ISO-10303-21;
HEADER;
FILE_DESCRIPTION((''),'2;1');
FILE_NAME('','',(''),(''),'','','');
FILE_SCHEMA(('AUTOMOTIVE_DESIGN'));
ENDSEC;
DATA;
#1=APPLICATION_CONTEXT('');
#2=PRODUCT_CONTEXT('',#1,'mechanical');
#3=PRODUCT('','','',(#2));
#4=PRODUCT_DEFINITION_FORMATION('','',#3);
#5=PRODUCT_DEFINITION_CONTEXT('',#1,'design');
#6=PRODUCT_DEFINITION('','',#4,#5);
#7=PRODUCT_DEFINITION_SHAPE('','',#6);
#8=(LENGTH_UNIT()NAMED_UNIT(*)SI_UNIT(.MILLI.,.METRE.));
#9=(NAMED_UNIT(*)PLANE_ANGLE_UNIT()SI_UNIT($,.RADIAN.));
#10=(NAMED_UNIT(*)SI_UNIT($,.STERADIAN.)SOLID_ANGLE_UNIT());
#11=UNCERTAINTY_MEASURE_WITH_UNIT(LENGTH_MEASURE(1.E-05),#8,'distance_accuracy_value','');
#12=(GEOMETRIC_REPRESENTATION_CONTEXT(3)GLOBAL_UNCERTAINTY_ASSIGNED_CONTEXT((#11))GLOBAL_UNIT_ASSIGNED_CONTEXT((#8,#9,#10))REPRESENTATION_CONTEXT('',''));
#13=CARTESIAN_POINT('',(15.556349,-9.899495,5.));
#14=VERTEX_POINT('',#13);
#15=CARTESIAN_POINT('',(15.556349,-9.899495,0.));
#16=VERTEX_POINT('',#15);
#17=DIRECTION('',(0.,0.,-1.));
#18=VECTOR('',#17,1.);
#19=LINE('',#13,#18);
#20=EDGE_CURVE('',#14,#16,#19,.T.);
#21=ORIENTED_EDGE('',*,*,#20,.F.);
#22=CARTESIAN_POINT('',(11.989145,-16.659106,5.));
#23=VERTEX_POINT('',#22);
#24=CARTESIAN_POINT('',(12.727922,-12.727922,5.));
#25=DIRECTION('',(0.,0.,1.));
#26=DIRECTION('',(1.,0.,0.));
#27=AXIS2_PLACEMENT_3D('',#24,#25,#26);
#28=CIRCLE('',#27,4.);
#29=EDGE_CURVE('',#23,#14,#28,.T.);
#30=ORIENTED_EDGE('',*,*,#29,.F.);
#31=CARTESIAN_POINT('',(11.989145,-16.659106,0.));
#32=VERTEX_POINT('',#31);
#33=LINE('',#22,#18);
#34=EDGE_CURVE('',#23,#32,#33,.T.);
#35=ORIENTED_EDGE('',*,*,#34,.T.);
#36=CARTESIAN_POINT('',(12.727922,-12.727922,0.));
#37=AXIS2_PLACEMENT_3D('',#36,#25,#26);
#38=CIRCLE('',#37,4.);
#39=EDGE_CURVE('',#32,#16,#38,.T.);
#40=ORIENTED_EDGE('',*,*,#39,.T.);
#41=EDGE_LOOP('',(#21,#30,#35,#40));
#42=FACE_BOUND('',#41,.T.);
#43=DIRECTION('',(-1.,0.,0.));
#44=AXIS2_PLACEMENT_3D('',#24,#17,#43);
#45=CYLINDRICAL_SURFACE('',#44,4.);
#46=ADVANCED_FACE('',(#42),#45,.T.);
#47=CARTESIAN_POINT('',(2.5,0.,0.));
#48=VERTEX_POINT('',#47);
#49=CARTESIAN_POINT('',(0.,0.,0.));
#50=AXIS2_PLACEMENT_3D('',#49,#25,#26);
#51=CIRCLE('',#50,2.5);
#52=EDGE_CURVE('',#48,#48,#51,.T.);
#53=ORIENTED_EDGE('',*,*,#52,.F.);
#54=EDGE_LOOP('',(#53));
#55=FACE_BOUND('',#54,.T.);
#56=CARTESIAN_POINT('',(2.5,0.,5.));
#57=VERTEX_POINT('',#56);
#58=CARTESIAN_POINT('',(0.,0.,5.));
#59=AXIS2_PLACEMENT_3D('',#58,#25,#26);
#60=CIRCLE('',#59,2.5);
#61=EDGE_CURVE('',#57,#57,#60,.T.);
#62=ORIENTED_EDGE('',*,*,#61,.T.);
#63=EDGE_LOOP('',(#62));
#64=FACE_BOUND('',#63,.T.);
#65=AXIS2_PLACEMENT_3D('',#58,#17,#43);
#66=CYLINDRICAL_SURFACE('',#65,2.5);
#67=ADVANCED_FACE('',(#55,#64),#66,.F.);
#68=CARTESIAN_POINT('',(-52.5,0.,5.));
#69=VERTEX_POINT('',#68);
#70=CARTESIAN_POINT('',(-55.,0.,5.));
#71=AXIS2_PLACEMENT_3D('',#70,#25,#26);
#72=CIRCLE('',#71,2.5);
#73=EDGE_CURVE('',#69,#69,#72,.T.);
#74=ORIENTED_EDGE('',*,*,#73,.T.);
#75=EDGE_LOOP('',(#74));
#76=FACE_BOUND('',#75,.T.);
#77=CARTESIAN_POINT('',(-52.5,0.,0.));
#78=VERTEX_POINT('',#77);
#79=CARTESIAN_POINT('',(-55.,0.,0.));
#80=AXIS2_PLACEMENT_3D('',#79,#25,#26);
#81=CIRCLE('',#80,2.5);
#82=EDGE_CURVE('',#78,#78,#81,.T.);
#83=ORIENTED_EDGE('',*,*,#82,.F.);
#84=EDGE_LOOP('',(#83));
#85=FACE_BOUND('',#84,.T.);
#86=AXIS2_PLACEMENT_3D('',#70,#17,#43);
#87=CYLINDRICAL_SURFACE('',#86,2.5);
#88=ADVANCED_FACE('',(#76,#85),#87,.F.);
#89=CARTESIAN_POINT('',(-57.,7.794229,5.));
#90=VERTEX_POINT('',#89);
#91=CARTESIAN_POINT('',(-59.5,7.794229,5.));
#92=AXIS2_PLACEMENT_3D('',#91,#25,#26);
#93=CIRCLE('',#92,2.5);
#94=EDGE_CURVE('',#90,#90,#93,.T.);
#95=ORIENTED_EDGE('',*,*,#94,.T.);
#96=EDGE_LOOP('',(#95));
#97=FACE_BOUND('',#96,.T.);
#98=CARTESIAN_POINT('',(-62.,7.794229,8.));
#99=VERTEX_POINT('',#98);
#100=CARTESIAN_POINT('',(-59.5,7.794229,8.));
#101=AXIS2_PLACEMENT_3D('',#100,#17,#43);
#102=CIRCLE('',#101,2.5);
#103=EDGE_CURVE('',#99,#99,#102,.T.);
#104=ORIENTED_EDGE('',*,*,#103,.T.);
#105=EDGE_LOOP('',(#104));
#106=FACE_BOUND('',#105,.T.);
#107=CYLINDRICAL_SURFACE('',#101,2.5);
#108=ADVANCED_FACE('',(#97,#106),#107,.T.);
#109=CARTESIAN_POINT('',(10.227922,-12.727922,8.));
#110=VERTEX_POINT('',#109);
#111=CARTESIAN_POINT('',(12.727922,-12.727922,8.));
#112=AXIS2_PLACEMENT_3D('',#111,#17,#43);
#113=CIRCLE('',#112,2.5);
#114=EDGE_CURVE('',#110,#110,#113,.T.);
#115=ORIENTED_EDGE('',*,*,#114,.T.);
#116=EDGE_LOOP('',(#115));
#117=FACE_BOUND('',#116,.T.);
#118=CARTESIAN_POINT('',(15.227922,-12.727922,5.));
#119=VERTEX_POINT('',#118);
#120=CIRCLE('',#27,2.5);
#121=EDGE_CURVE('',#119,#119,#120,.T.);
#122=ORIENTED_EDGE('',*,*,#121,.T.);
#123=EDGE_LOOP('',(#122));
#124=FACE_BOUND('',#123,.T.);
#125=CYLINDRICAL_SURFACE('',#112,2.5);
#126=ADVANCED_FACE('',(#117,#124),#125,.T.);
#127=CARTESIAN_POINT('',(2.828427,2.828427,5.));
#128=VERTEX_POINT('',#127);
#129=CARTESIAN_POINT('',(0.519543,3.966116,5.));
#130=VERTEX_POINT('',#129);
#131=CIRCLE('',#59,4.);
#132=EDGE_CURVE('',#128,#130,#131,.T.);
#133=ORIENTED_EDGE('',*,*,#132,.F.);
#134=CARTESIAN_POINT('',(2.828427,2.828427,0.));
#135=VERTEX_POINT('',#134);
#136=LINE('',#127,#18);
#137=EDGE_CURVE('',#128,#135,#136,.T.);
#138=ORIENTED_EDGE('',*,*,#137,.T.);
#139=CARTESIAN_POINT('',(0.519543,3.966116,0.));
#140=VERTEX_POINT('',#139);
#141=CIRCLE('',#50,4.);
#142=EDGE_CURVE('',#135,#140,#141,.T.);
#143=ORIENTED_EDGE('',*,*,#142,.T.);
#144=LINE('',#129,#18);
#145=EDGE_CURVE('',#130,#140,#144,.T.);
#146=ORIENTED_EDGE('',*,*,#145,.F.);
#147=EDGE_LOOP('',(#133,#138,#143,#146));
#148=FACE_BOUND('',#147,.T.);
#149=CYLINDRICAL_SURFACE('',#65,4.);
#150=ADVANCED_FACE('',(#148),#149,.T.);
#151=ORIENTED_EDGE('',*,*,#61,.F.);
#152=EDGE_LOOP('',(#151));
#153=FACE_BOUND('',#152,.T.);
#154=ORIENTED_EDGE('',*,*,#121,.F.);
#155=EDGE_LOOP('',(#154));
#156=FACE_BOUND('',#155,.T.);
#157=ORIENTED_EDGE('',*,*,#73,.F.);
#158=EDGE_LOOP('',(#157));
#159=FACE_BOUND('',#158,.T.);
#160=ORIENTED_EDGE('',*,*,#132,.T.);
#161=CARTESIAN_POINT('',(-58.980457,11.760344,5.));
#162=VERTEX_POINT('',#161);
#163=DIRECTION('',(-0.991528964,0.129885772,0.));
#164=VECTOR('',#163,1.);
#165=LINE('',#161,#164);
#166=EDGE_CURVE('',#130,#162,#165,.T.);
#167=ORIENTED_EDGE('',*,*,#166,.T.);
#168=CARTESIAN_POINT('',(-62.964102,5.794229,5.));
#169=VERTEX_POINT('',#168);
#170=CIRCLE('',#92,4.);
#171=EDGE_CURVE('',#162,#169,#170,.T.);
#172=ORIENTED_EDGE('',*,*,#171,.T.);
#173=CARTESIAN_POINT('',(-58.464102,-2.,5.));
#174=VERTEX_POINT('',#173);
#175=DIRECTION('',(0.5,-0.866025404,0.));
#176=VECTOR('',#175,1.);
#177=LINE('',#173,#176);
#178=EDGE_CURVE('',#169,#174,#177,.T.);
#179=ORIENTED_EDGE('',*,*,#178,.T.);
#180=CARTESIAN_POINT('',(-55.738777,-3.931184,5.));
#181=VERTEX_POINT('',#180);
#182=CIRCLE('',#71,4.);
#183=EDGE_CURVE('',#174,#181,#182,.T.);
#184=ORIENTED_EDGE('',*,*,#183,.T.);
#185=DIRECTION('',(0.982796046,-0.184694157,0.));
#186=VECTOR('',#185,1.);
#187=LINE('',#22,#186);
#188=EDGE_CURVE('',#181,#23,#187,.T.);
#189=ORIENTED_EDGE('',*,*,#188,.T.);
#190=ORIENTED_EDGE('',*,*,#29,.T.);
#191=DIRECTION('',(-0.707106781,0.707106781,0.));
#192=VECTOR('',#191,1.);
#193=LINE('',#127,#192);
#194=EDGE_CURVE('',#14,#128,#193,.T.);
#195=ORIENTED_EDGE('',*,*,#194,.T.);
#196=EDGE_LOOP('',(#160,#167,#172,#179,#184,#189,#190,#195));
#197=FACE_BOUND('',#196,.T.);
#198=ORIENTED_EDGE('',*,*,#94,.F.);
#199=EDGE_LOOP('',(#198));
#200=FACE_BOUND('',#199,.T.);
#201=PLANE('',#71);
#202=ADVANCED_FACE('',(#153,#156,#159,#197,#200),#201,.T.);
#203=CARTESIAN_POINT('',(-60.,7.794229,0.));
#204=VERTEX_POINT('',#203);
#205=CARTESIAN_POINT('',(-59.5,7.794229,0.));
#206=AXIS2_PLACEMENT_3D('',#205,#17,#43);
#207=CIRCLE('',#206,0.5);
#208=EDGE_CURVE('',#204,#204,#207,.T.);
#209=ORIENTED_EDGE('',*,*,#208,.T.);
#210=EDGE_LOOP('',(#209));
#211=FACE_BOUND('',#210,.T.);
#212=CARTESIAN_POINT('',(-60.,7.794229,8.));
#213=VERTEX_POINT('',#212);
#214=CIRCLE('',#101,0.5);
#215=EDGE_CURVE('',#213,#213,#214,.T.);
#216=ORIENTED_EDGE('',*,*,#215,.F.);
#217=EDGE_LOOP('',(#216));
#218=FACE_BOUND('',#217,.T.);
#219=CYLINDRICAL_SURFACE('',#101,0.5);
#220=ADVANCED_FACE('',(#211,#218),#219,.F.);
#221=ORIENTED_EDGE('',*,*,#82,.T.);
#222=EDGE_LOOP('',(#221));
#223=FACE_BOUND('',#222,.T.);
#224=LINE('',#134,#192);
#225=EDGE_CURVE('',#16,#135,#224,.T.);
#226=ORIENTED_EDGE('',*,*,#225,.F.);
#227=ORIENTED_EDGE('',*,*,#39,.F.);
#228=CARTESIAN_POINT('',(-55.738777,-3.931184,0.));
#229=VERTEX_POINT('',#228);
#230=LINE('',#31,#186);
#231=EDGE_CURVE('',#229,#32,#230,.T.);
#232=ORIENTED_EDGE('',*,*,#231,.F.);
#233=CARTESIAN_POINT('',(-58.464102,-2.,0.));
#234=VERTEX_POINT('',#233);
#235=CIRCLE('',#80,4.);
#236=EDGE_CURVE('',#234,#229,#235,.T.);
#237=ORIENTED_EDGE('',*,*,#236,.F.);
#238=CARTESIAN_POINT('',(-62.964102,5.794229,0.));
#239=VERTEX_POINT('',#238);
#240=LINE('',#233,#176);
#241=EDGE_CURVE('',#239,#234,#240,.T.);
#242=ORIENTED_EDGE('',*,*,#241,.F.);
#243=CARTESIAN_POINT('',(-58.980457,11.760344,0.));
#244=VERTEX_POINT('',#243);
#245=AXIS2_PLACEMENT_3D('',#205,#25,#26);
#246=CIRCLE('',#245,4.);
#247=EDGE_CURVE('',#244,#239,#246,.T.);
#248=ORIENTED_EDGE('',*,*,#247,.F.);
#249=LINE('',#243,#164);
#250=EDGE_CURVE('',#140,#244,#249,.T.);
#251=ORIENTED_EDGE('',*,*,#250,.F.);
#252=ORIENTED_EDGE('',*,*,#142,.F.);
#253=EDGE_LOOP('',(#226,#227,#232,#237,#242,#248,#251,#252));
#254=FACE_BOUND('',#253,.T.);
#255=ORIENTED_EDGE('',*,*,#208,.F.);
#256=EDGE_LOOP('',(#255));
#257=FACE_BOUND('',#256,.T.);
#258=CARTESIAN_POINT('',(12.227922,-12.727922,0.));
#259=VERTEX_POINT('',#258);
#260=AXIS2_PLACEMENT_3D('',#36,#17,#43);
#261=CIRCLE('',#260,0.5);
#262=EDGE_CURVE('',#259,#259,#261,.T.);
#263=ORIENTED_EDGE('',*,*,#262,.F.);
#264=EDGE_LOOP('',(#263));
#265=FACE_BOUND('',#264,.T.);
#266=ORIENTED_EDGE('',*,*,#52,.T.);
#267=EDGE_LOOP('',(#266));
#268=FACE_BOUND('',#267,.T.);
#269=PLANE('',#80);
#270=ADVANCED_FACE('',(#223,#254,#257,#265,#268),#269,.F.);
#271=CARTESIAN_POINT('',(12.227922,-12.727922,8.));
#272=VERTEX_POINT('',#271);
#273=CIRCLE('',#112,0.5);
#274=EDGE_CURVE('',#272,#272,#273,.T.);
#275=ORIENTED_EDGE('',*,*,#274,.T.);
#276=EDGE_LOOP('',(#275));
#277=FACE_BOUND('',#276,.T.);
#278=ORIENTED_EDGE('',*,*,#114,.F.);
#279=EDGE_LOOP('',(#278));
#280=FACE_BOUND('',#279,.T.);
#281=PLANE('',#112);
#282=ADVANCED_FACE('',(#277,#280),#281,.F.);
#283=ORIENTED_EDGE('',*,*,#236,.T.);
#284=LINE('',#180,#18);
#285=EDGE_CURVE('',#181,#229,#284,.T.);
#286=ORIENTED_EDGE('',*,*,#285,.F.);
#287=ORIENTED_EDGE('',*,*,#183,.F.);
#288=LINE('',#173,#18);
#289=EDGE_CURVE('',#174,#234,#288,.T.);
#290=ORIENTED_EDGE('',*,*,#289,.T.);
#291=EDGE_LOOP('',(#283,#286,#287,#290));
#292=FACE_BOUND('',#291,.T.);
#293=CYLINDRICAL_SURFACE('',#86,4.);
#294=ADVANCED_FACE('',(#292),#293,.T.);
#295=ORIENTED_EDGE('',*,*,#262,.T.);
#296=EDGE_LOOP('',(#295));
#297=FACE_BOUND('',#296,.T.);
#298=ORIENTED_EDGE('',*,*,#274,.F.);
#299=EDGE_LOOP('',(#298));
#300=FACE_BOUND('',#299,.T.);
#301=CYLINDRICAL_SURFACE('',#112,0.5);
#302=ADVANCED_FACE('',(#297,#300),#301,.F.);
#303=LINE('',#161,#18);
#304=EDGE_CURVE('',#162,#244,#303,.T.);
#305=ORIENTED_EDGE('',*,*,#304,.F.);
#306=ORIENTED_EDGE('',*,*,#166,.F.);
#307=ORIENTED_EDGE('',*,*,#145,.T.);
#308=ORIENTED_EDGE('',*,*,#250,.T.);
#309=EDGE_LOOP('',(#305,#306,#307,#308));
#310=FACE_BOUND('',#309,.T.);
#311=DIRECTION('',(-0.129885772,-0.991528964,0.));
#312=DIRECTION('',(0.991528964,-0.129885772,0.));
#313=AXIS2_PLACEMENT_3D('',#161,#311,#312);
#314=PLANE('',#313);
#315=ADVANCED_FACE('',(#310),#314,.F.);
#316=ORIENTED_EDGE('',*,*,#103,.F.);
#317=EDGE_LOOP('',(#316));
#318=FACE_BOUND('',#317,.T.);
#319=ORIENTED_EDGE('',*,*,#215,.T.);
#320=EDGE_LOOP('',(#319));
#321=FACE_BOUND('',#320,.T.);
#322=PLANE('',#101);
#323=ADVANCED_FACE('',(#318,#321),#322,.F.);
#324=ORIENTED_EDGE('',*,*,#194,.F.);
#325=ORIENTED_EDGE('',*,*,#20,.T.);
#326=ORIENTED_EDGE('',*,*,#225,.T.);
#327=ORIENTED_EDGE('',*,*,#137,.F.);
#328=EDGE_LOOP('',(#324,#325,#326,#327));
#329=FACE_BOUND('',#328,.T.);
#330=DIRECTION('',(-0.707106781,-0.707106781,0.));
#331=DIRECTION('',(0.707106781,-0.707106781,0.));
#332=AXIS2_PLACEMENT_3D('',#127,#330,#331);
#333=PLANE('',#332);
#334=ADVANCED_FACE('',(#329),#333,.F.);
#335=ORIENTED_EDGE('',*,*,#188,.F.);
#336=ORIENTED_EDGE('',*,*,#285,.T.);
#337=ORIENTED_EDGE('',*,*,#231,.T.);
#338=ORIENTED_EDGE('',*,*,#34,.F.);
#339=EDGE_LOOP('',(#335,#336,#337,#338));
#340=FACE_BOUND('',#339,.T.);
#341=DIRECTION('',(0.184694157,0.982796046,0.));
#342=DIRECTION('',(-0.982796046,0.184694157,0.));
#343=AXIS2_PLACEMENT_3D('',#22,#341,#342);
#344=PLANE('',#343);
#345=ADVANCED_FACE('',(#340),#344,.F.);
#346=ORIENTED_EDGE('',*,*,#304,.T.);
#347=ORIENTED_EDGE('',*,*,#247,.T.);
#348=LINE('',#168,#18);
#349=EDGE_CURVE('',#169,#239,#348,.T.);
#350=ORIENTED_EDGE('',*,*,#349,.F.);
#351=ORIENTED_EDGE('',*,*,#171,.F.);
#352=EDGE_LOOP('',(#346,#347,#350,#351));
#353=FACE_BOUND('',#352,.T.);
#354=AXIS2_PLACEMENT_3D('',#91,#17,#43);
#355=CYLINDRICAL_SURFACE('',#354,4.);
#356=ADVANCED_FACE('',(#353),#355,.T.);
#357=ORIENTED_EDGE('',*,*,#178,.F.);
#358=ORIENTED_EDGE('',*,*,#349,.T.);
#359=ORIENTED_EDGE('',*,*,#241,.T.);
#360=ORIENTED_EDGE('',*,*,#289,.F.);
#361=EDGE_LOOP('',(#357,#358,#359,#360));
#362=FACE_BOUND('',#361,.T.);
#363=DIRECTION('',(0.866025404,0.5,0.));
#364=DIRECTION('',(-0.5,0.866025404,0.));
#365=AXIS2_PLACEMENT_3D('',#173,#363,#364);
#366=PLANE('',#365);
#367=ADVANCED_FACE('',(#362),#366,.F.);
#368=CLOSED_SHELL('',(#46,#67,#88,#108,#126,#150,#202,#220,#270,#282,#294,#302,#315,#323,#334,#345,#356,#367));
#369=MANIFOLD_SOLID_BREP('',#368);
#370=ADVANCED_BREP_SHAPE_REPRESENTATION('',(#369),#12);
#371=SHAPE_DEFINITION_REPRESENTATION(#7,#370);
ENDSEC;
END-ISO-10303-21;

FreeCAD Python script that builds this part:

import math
import FreeCAD as App
import Part
import Sketcher
from FreeCAD import Vector
Q = App.Units.Quantity

doc = App.newDocument("Part")
body = doc.addObject("PartDesign::Body", "Body")

# Sketch on XY plane
sketch1 = doc.addObject("Sketcher::SketchObject", "Sketch")
body.addObject(sketch1)
sketch1.AttachmentSupport = (doc.XY_Plane, [""])
sketch1.MapMode = "FlatFace"
sketch1.addGeometry([
    Part.LineSegment(Vector(0.519543, 3.966116, 0), Vector(-58.980457, 11.760344, 0)),  # 0
    Part.ArcOfCircle(Part.Circle(Vector(-59.5, 7.794229, 0), Vector(0, 0, 1), 4), math.radians(82.537008), math.radians(210)),  # 1
    Part.LineSegment(Vector(-62.964102, 5.794229, 0), Vector(-58.464102, -2, 0)),  # 2
    Part.ArcOfCircle(Part.Circle(Vector(-55, 0, 0), Vector(0, 0, 1), 4), math.radians(-150), math.radians(-100.643302)),  # 3
    Part.LineSegment(Vector(-55.738777, -3.931184, 0), Vector(11.989145, -16.659106, 0)),  # 4
    Part.ArcOfCircle(Part.Circle(Vector(12.727922, -12.727922, 0), Vector(0, 0, 1), 4), math.radians(-100.643302), math.radians(45)),  # 5
    Part.LineSegment(Vector(15.556349, -9.899495, 0), Vector(2.828427, 2.828427, 0)),  # 6
    Part.ArcOfCircle(Part.Circle(Vector(0, 0, 0), Vector(0, 0, 1), 4), math.radians(45), math.radians(82.537008)),  # 7
    Part.Circle(Vector(12.727922, -12.727922, 0), Vector(0, 0, 1), 2.5),  # 8
    Part.Circle(Vector(0, 0, 0), Vector(0, 0, 1), 2.5),  # 9
    Part.Circle(Vector(-55, 0, 0), Vector(0, 0, 1), 2.5),  # 10
    Part.Circle(Vector(-59.5, 7.794229, 0), Vector(0, 0, 1), 2.5),  # 11
], False)
sketch1.addConstraint([
    Sketcher.Constraint("Tangent", 0, 2, 1, 1),
    Sketcher.Constraint("Tangent", 1, 2, 2, 1),
    Sketcher.Constraint("Tangent", 2, 2, 3, 1),
    Sketcher.Constraint("Tangent", 3, 2, 4, 1),
    Sketcher.Constraint("Tangent", 4, 2, 5, 1),
    Sketcher.Constraint("Tangent", 5, 2, 6, 1),
    Sketcher.Constraint("Tangent", 6, 2, 7, 1),
    Sketcher.Constraint("Tangent", 7, 2, 0, 1),
    Sketcher.Constraint("Coincident", 7, 3, -1, 1),
    Sketcher.Constraint("Coincident", 9, 3, -1, 1),
    Sketcher.Constraint("Coincident", 8, 3, 5, 3),
    Sketcher.Constraint("Coincident", 10, 3, 3, 3),
    Sketcher.Constraint("Coincident", 11, 3, 1, 3),
    Sketcher.Constraint("Equal", 1, 3),
    Sketcher.Constraint("Equal", 3, 5),
    Sketcher.Constraint("Equal", 5, 7),
    Sketcher.Constraint("Equal", 8, 9),
    Sketcher.Constraint("Equal", 9, 10),
    Sketcher.Constraint("Equal", 10, 11),
    Sketcher.Constraint("PointOnObject", 3, 3, -1),
    Sketcher.Constraint("Diameter", 8, 5.0),
    Sketcher.Constraint("Radius", 1, 4.0),
    Sketcher.Constraint("Angle", 2, Q("-60 deg")),
    Sketcher.Constraint("Angle", 6, Q("135 deg")),
    Sketcher.Constraint("Distance", 2, 9.0),
    Sketcher.Constraint("Distance", 6, 18.0),
    Sketcher.Constraint("DistanceX", 3, 3, -1, 1, 55.0),
])
pad1 = doc.addObject("PartDesign::Pad", "Pad")
body.addObject(pad1)
pad1.Profile = sketch1
pad1.Length = 5

# Sketch on XY plane
sketch2 = doc.addObject("Sketcher::SketchObject", "Sketch001")
body.addObject(sketch2)
sketch2.AttachmentSupport = (doc.XY_Plane, [""])
sketch2.MapMode = "FlatFace"
sketch2.addGeometry([
    Part.Circle(Vector(-59.5, 7.794229, 0), Vector(0, 0, 1), 2.5),
    Part.Circle(Vector(-59.5, 7.794229, 0), Vector(0, 0, 1), 0.5),
    Part.Circle(Vector(12.727922, -12.727922, 0), Vector(0, 0, 1), 2.5),
    Part.Circle(Vector(12.727922, -12.727922, 0), Vector(0, 0, 1), 0.5),
], False)
sketch2.addConstraint([
    Sketcher.Constraint("Coincident", 1, 3, 0, 3),
    Sketcher.Constraint("Coincident", 3, 3, 2, 3),
    Sketcher.Constraint("Equal", 0, 2),
    Sketcher.Constraint("Equal", 1, 3),
    Sketcher.Constraint("Diameter", 0, 5.0),
    Sketcher.Constraint("Diameter", 1, 1.0),
    Sketcher.Constraint("DistanceX", 0, 3, -1, 1, 59.5),
    Sketcher.Constraint("DistanceY", -1, 1, 0, 3, 7.794229),
    Sketcher.Constraint("DistanceY", 2, 3, 0, 3, 20.522151),
    Sketcher.Constraint("DistanceX", -1, 1, 2, 3, 12.727922),
])
pad2 = doc.addObject("PartDesign::Pad", "Pad001")
body.addObject(pad2)
pad2.Profile = sketch2
pad2.Length = 8

doc.recompute()
